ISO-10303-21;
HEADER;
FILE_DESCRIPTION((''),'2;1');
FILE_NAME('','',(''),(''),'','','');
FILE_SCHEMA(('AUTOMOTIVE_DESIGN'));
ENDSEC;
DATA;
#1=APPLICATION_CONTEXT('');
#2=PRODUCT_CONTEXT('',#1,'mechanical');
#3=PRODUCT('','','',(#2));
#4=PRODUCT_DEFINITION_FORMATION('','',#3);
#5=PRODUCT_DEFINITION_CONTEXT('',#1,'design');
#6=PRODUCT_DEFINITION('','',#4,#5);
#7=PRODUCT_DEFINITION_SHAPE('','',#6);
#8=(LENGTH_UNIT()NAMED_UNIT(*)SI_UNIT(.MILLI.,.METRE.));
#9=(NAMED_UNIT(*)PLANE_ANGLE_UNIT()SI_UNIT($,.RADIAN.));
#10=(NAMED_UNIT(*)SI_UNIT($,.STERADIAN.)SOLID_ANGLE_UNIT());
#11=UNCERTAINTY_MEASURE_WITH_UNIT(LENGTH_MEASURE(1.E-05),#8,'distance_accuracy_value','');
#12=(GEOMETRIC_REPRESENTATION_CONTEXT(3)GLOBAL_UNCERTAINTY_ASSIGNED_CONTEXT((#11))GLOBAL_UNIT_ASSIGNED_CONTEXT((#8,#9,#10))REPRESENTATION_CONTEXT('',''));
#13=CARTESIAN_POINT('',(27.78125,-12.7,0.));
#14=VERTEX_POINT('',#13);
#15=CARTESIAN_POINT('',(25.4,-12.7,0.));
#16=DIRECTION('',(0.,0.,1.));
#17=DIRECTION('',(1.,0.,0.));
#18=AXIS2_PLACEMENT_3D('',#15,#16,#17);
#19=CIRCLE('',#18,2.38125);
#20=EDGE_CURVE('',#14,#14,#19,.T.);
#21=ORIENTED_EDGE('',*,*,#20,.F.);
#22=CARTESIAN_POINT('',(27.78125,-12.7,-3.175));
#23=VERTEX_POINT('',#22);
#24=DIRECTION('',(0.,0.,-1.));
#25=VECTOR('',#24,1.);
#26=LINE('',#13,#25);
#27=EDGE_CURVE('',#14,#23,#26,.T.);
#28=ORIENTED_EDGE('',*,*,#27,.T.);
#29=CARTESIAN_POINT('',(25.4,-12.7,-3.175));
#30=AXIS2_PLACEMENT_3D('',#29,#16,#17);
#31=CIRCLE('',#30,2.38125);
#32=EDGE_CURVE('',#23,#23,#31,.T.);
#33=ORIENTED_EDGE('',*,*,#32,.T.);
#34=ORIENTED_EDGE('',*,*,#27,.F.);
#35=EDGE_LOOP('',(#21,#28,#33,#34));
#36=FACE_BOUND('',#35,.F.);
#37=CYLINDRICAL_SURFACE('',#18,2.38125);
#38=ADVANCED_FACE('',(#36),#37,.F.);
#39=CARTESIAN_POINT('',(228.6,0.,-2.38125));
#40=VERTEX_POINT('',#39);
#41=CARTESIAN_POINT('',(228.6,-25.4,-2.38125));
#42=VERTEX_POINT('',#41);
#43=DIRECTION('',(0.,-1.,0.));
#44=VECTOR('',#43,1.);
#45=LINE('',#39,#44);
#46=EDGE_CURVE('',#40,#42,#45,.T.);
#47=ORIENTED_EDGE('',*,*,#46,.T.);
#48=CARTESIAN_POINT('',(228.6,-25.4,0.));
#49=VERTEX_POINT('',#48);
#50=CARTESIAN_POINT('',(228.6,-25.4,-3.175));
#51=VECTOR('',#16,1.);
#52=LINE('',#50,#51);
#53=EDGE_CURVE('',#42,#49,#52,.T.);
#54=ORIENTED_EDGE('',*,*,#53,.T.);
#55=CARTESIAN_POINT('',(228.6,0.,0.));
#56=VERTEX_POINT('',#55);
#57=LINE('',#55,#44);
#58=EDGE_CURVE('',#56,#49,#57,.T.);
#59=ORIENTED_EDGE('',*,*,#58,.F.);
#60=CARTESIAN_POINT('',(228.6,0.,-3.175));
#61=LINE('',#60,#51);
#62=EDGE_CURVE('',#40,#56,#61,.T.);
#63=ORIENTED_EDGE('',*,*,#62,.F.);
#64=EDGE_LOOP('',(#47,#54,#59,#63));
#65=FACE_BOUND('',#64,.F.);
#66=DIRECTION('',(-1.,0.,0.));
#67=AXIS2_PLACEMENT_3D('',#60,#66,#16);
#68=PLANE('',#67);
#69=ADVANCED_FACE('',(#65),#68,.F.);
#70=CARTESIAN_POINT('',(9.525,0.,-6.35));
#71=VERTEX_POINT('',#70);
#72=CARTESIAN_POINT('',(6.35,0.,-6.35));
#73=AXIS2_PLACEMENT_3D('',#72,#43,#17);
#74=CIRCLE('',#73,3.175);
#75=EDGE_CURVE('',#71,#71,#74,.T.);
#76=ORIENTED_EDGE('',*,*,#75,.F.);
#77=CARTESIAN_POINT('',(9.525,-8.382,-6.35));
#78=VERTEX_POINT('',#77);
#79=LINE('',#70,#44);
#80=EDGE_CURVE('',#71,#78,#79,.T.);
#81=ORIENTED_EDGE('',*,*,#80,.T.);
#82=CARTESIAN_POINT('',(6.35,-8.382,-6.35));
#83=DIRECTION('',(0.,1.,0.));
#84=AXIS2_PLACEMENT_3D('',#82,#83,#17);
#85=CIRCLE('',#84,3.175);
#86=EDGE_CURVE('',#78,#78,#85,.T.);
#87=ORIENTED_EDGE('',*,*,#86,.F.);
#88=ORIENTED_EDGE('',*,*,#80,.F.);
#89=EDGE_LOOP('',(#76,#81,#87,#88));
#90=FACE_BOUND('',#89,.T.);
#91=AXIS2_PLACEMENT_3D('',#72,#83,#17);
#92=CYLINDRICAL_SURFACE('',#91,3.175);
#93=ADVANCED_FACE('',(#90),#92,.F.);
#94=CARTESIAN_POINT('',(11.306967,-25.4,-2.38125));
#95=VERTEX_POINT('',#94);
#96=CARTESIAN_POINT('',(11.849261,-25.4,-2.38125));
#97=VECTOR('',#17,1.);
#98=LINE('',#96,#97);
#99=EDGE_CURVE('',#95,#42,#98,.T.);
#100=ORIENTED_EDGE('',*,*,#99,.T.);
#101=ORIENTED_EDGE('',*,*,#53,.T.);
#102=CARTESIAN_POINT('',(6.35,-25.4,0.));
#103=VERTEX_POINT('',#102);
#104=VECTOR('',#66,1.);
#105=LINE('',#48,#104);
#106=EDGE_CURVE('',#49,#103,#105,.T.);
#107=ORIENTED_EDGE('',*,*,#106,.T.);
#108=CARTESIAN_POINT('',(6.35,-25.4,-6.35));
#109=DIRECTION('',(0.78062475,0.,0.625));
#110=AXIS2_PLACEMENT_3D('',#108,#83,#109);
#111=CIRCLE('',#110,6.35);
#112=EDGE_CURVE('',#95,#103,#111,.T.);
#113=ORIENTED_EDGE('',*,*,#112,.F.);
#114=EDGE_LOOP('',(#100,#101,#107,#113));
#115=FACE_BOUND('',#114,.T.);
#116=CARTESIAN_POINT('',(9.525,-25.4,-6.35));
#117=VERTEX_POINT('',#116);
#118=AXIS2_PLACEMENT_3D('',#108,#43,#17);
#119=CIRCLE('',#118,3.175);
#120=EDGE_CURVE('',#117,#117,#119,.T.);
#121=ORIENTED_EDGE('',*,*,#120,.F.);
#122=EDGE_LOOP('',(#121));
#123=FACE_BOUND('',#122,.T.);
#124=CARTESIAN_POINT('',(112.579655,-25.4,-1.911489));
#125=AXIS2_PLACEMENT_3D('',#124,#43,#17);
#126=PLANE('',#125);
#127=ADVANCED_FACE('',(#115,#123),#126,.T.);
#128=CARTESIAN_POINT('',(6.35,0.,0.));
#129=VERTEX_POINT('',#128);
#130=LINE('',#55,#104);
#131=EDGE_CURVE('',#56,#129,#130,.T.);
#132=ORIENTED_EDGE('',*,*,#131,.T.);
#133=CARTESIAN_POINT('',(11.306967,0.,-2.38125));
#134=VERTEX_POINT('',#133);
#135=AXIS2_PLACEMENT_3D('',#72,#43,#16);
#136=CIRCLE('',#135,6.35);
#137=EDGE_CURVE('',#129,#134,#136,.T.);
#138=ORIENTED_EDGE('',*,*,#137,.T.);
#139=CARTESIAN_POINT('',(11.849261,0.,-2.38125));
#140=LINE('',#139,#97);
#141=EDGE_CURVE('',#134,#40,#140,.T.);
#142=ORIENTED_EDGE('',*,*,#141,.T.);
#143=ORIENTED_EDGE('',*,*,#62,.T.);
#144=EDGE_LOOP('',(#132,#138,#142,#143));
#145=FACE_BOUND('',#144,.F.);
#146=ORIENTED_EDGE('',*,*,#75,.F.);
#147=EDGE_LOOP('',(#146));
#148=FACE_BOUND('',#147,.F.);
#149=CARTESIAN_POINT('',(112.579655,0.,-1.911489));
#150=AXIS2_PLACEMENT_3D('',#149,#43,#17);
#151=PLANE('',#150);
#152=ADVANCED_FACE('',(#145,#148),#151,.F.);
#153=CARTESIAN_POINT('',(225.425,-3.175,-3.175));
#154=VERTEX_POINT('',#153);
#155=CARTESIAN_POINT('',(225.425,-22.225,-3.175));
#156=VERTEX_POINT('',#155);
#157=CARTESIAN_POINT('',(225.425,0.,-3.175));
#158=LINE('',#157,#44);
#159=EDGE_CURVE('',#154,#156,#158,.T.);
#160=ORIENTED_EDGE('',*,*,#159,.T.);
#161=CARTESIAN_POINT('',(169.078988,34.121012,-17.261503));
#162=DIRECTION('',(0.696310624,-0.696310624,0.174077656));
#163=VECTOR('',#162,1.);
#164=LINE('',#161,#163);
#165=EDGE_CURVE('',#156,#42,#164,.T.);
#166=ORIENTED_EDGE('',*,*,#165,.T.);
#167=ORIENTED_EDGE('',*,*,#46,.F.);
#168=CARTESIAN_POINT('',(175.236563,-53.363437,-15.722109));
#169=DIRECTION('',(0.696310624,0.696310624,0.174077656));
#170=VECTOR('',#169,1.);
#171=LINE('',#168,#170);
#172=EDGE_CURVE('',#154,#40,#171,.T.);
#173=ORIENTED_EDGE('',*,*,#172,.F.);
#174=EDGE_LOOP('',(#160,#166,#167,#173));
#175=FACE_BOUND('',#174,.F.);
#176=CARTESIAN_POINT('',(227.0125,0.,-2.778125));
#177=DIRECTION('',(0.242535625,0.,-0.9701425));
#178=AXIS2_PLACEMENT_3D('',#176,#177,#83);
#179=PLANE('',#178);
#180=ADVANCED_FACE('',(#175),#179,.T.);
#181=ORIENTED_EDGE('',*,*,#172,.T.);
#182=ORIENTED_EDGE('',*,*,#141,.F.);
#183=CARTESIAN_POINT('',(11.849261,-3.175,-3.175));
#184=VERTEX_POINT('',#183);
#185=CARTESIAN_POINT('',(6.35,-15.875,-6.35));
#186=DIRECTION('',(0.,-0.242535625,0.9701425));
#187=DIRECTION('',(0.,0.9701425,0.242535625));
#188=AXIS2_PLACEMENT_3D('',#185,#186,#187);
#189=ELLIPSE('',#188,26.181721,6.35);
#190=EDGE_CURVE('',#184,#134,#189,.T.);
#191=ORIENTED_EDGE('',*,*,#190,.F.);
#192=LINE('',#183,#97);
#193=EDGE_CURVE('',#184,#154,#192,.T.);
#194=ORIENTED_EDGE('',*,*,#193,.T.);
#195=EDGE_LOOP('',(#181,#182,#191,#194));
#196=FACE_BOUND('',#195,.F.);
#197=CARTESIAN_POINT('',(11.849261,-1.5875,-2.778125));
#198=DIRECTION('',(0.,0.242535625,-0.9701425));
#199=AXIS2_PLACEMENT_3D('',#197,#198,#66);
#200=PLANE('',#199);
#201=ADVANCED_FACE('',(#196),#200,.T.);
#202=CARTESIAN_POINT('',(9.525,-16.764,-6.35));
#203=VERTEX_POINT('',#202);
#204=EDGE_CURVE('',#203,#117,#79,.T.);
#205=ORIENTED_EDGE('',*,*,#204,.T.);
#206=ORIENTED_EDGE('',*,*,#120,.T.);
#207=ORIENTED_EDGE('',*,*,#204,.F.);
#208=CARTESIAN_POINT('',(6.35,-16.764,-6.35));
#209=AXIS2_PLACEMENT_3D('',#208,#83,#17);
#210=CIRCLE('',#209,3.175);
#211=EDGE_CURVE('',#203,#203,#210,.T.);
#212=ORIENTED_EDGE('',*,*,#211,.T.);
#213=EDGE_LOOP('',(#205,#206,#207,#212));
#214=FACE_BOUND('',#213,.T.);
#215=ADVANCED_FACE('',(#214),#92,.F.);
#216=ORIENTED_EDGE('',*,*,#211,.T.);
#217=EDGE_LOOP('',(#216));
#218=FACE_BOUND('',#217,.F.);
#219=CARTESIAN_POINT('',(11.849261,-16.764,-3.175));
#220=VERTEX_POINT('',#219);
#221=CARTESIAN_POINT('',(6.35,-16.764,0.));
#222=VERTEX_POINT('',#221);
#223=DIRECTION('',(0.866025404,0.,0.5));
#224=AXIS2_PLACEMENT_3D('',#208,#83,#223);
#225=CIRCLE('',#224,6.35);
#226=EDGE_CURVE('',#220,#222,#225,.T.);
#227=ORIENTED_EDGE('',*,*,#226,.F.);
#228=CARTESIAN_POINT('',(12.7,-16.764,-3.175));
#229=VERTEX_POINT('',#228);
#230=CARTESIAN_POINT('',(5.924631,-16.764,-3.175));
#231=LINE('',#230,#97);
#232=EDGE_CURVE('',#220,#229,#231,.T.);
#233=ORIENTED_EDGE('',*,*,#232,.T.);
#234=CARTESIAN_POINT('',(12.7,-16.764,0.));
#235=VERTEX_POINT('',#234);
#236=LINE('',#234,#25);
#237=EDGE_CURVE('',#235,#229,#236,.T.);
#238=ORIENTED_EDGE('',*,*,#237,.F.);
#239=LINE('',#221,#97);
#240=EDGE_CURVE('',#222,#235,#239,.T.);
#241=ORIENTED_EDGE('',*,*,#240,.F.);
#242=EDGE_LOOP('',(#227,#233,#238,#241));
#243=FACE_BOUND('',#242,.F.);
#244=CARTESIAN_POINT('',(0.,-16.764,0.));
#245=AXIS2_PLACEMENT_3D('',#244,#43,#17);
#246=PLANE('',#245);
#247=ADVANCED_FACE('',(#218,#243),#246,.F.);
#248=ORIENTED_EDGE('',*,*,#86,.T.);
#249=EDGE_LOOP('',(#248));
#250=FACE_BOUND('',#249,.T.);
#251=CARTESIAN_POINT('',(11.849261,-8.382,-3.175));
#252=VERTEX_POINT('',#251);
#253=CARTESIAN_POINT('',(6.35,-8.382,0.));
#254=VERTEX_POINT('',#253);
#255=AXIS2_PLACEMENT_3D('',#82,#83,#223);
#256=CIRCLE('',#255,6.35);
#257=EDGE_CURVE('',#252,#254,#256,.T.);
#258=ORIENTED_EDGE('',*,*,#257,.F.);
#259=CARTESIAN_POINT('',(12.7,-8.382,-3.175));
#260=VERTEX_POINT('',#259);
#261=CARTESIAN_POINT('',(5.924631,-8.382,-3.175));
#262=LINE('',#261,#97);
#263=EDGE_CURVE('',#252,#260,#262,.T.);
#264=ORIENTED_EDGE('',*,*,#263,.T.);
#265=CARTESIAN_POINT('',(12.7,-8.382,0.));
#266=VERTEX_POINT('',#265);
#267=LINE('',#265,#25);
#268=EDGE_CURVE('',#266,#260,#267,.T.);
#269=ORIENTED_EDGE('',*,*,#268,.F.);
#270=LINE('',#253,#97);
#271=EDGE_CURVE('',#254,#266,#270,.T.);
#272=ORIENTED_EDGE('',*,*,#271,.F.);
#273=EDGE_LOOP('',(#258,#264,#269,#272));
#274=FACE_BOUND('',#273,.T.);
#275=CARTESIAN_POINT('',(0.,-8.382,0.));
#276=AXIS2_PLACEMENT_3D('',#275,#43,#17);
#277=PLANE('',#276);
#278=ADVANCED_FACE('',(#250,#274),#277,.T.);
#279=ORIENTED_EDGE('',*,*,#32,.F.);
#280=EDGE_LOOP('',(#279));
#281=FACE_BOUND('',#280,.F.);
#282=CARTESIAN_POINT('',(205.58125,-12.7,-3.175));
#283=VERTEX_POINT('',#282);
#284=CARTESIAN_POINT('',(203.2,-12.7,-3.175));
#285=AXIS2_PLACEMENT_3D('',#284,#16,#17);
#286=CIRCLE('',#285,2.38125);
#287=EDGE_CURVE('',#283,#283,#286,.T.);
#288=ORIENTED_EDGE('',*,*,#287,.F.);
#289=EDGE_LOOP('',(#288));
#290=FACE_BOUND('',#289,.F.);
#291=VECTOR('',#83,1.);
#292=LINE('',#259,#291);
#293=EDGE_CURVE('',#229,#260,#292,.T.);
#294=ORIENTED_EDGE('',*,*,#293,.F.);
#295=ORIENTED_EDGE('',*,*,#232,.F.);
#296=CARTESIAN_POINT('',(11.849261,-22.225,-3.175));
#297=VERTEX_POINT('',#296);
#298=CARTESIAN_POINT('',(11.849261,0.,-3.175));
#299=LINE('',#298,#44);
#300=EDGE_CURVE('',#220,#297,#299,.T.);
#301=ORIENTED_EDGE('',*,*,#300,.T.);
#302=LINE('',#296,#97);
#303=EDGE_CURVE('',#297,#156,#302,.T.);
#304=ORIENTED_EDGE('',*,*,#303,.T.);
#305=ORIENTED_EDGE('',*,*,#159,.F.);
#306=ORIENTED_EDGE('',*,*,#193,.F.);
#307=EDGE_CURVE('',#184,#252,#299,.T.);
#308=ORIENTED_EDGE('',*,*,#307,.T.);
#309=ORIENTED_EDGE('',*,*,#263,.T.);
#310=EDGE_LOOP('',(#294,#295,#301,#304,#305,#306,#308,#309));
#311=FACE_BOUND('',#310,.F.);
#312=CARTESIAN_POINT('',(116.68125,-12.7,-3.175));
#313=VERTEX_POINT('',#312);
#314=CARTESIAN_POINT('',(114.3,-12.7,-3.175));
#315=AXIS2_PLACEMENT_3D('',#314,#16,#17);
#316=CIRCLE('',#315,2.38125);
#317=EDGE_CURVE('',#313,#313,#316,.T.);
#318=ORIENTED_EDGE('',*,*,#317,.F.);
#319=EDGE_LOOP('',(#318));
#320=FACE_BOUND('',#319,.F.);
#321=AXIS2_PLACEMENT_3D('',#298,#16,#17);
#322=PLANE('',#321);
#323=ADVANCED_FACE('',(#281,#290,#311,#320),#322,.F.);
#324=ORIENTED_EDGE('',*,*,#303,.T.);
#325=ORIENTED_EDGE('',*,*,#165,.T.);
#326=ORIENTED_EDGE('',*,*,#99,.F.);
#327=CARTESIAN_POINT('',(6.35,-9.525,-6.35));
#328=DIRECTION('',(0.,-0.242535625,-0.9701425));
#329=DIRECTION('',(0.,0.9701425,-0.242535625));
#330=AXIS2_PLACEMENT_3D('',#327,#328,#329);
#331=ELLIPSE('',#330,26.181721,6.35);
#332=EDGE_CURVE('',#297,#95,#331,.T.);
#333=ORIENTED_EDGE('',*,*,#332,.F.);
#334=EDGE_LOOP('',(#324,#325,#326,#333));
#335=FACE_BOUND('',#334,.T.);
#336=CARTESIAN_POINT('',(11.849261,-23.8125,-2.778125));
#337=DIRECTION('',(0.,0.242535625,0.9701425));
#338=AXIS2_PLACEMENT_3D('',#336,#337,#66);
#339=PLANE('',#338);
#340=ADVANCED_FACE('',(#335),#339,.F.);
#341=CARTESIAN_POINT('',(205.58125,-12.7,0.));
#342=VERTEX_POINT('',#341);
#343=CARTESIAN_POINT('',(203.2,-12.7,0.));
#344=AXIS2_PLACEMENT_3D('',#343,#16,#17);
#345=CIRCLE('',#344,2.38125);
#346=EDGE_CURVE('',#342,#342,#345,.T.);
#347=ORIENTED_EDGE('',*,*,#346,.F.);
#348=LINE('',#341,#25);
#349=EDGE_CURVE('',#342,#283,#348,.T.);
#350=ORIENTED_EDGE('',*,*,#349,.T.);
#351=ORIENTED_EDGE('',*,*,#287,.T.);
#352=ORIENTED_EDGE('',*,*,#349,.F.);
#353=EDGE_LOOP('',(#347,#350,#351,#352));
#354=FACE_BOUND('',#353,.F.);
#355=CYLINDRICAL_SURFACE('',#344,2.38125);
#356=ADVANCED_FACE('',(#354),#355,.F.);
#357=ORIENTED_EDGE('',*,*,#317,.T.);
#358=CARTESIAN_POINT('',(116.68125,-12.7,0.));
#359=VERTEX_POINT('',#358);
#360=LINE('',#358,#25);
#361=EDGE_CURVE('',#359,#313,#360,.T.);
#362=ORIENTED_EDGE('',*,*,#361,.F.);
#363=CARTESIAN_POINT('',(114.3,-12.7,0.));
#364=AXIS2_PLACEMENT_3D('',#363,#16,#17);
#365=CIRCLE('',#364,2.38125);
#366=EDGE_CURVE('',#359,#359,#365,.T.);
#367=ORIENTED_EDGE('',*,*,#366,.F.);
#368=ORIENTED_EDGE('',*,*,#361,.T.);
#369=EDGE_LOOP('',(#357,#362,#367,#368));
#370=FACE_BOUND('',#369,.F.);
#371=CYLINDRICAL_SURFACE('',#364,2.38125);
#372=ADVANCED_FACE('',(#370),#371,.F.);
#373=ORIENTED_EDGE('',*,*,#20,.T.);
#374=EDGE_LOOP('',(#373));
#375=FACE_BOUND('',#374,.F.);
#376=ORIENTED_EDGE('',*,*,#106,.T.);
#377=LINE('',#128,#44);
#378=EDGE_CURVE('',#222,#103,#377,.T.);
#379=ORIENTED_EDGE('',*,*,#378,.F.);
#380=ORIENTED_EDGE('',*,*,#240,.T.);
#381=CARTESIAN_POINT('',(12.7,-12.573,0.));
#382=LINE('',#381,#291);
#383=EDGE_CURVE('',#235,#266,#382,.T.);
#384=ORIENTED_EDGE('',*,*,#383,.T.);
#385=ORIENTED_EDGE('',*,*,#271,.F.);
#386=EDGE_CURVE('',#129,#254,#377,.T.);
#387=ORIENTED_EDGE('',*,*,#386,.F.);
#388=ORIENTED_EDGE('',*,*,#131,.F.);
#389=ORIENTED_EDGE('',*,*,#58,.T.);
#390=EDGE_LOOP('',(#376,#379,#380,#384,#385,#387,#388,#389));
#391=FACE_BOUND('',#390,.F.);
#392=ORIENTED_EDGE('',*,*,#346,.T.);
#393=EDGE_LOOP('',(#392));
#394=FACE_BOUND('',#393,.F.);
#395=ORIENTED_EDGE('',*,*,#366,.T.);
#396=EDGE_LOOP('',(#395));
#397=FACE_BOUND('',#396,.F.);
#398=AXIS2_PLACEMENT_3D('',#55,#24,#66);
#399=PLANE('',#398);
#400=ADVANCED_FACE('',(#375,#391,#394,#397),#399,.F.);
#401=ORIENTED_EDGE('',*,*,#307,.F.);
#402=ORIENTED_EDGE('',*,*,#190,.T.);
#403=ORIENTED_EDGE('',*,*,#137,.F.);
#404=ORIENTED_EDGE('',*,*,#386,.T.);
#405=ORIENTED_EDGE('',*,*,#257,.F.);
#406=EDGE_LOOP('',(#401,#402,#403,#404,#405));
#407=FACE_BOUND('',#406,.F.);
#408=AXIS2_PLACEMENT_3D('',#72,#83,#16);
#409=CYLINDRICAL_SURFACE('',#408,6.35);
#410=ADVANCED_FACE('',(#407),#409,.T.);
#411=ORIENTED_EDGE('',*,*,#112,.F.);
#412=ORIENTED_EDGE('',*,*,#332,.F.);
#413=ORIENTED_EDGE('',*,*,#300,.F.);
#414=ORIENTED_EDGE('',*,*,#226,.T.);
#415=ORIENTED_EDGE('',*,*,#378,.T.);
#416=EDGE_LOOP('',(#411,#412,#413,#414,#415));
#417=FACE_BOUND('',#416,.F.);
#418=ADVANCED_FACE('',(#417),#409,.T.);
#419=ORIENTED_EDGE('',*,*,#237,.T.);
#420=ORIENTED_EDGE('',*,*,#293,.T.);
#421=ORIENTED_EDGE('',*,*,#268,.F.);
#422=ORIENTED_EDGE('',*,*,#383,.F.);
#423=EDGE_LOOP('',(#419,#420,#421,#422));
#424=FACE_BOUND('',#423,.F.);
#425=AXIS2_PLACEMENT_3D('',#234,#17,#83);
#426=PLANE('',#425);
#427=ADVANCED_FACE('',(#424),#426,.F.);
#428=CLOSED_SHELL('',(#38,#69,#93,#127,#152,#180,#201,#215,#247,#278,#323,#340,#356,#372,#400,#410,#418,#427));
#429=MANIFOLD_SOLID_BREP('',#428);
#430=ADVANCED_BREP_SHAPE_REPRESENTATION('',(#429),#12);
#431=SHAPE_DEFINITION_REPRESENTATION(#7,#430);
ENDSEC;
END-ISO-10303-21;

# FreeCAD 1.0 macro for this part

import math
import FreeCAD as App
import Part
import Sketcher

V = App.Vector
Q = App.Units.Quantity


def edges_at(feature, points):
    """Names of the edges that pass closest to the given points."""
    edges = feature.Shape.Edges
    near = lambda p: min(range(len(edges)), key=lambda i: edges[i].distToShape(Part.Vertex(*p))[0])
    return sorted({f"Edge{near(p) + 1}" for p in points})


def add_polygon(sketch, points):
    """Adds a closed chain of lines whose ends are joined by coincident constraints."""
    first, n = sketch.GeometryCount, len(points)
    for a, b in zip(points, points[1:] + points[:1]):
        sketch.addGeometry(Part.LineSegment(App.Vector(*a, 0), App.Vector(*b, 0)), False)
    for i in range(n):
        sketch.addConstraint(Sketcher.Constraint("Coincident", first + i, 2, first + (i + 1) % n, 1))

doc = App.newDocument("Part")
body = doc.addObject("PartDesign::Body", "Body")

# Sketch on XZ plane
sketch1 = doc.addObject("Sketcher::SketchObject", "Sketch")
body.addObject(sketch1)
sketch1.AttachmentSupport = (doc.XZ_Plane, [""])
sketch1.MapMode = "FlatFace"
sketch1.addGeometry(Part.LineSegment(V(228.6, 0, 0), V(6.35, 0, 0)), False)
sketch1.addGeometry(Part.ArcOfCircle(Part.Circle(V(6.35, -6.35, 0), V(0, 0, 1), 6.35), math.radians(90), math.radians(390)), False)
sketch1.addGeometry(Part.LineSegment(V(11.849261, -3.175, 0), V(228.6, -3.175, 0)), False)
sketch1.addGeometry(Part.LineSegment(V(228.6, -3.175, 0), V(228.6, 0, 0)), False)
sketch1.addGeometry(Part.Circle(V(6.35, -6.35, 0), V(0, 0, 1), 3.175), False)
sketch1.addConstraint(Sketcher.Constraint("Tangent", 0, 2, 1, 1))
sketch1.addConstraint(Sketcher.Constraint("Coincident", 1, 2, 2, 1))
sketch1.addConstraint(Sketcher.Constraint("Coincident", 2, 2, 3, 1))
sketch1.addConstraint(Sketcher.Constraint("Coincident", 3, 2, 0, 1))
sketch1.addConstraint(Sketcher.Constraint("Horizontal", 0))
sketch1.addConstraint(Sketcher.Constraint("Horizontal", 2))
sketch1.addConstraint(Sketcher.Constraint("Vertical", 3))
sketch1.addConstraint(Sketcher.Constraint("Coincident", 4, 3, 1, 3))
sketch1.addConstraint(Sketcher.Constraint("PointOnObject", 0, 2, -1))
sketch1.addConstraint(Sketcher.Constraint("Diameter", 4, Q("0.25 in")))
sketch1.addConstraint(Sketcher.Constraint("Radius", 1, Q("0.25 in")))
sketch1.addConstraint(Sketcher.Constraint("DistanceX", -1, 1, 2, 2, Q("9 in")))
sketch1.addConstraint(Sketcher.Constraint("DistanceX", 0, 2, 0, 1, Q("8.75 in")))
sketch1.addConstraint(Sketcher.Constraint("DistanceY", 3, 1, 3, 2, Q("0.125 in")))
pad1 = doc.addObject("PartDesign::Pad", "Pad")
body.addObject(pad1)
pad1.Profile = sketch1
pad1.Length = Q("1 in")

# Sketch on XY plane
sketch2 = doc.addObject("Sketcher::SketchObject", "Sketch001")
body.addObject(sketch2)
sketch2.AttachmentSupport = (doc.XY_Plane, [""])
sketch2.MapMode = "FlatFace"
sketch2.addGeometry(Part.Circle(V(203.2, -12.7, 0), V(0, 0, 1), 2.38125), False)
sketch2.addGeometry(Part.Circle(V(114.3, -12.7, 0), V(0, 0, 1), 2.38125), False)
sketch2.addGeometry(Part.Circle(V(25.4, -12.7, 0), V(0, 0, 1), 2.38125), False)
sketch2.addConstraint(Sketcher.Constraint("Equal", 0, 1))
sketch2.addConstraint(Sketcher.Constraint("Equal", 1, 2))
sketch2.addConstraint(Sketcher.Constraint("Horizontal", 0, 3, 1, 3))
sketch2.addConstraint(Sketcher.Constraint("Horizontal", 1, 3, 2, 3))
sketch2.addConstraint(Sketcher.Constraint("Diameter", 0, Q("0.1875 in")))
sketch2.addConstraint(Sketcher.Constraint("DistanceX", -1, 1, 0, 3, Q("8 in")))
sketch2.addConstraint(Sketcher.Constraint("DistanceX", -1, 1, 2, 3, Q("1 in")))
sketch2.addConstraint(Sketcher.Constraint("DistanceY", 0, 3, -1, 1, Q("0.5 in")))
sketch2.addConstraint(Sketcher.Constraint("DistanceX", -1, 1, 1, 3, Q("4.5 in")))
pocket1 = doc.addObject("PartDesign::Pocket", "Pocket")
body.addObject(pocket1)
pocket1.Profile = sketch2
pocket1.Type = "ThroughAll"

# Sketch on XY plane
sketch3 = doc.addObject("Sketcher::SketchObject", "Sketch002")
body.addObject(sketch3)
sketch3.AttachmentSupport = (doc.XY_Plane, [""])
sketch3.MapMode = "FlatFace"
add_polygon(sketch3, [(0, -8.382), (0, -16.764), (12.7, -16.764), (12.7, -8.382)])  # lines 0-3
sketch3.addConstraint(Sketcher.Constraint("Vertical", 0))
sketch3.addConstraint(Sketcher.Constraint("Horizontal", 1))
sketch3.addConstraint(Sketcher.Constraint("Vertical", 2))
sketch3.addConstraint(Sketcher.Constraint("Horizontal", 3))
sketch3.addConstraint(Sketcher.Constraint("PointOnObject", 0, 2, -2))
sketch3.addConstraint(Sketcher.Constraint("DistanceX", 1, 1, 1, 2, Q("0.5 in")))
sketch3.addConstraint(Sketcher.Constraint("DistanceY", 0, 2, 0, 1, Q("0.33 in")))
sketch3.addConstraint(Sketcher.Constraint("DistanceY", 0, 2, -1, 1, Q("0.66 in")))
pocket2 = doc.addObject("PartDesign::Pocket", "Pocket001")
body.addObject(pocket2)
pocket2.Profile = sketch3
pocket2.Type = "ThroughAll"
doc.recompute()

chamfer = doc.addObject("PartDesign::Chamfer", "Chamfer")
body.addObject(chamfer)
chamfer.Base = (pocket2, edges_at(pocket2, [(120.225, -25.4, -3.175), (120.225, 0, -3.175), (228.6, -12.7, -3.175)]))
chamfer.ChamferType = "Two distances"
chamfer.Size = Q("0.125 in")
chamfer.Size2 = Q("0.03125 in")
chamfer.FlipDirection = True

doc.recompute()
